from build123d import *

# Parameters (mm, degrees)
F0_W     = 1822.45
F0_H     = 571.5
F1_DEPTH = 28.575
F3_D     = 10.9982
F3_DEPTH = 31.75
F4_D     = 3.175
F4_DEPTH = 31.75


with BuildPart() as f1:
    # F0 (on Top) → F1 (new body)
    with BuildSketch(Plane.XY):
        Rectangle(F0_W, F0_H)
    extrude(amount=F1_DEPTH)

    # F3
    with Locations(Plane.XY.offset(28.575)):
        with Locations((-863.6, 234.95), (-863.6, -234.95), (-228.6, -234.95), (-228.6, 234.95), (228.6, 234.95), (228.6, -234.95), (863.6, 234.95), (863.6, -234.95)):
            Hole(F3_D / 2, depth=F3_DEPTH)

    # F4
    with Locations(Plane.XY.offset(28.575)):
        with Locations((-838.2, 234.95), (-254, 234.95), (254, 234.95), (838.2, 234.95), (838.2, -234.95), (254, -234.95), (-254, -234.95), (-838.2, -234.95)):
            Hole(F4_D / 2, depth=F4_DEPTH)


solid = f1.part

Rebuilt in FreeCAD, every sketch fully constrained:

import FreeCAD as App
import Part
import Sketcher
Q = App.Units.Quantity


def add_polygon(sketch, points):
    """Adds a closed chain of lines whose ends are joined by coincident constraints."""
    first, n = sketch.GeometryCount, len(points)
    for a, b in zip(points, points[1:] + points[:1]):
        sketch.addGeometry(Part.LineSegment(App.Vector(*a, 0), App.Vector(*b, 0)), False)
    for i in range(n):
        sketch.addConstraint(Sketcher.Constraint("Coincident", first + i, 2, first + (i + 1) % n, 1))

doc = App.newDocument("Part")
body = doc.addObject("PartDesign::Body", "Body")

# Sketch on XY plane
sketch1 = body.newObject("Sketcher::SketchObject", "Sketch")
sketch1.AttachmentSupport = (doc.getObject("XY_Plane"), [""])
sketch1.MapMode = "FlatFace"
add_polygon(sketch1, [(-911, 286), (-911, -286), (911, -286), (911, 286)])  # lines 0-3
sketch1.addConstraint([
    Sketcher.Constraint("Vertical", 0),
    Sketcher.Constraint("Horizontal", 1),
    Sketcher.Constraint("Vertical", 2),
    Sketcher.Constraint("Horizontal", 3),
    Sketcher.Constraint("Symmetric", 0, 2, 2, 2, -1, 1),
    Sketcher.Constraint("DistanceY", 0, 2, 0, 1, Q("22.5 in")),
    Sketcher.Constraint("DistanceX", 1, 1, 1, 2, Q("71.75 in")),
])
pad1 = body.newObject("PartDesign::Pad", "Pad")
pad1.Profile = sketch1
pad1.Length = Q("1.125 in")

# Sketch on XY plane
sketch2 = body.newObject("Sketcher::SketchObject", "Sketch001")
sketch2.AttachmentSupport = (doc.getObject("XY_Plane"), [""])
sketch2.MapMode = "FlatFace"
sketch2.AttachmentOffset = App.Placement(App.Vector(0, 0, 1.125 * 25.4), App.Rotation())
sketch2.addGeometry([
    Part.Circle(App.Vector(-864, 235, 0), App.Vector(0, 0, 1), 5),  # 0
    Part.Circle(App.Vector(-864, -235, 0), App.Vector(0, 0, 1), 5),  # 1
    Part.Circle(App.Vector(-229, -235, 0), App.Vector(0, 0, 1), 5),  # 2
    Part.Circle(App.Vector(-229, 235, 0), App.Vector(0, 0, 1), 5),  # 3
    Part.Circle(App.Vector(229, 235, 0), App.Vector(0, 0, 1), 5),  # 4
    Part.Circle(App.Vector(229, -235, 0), App.Vector(0, 0, 1), 5),  # 5
    Part.Circle(App.Vector(864, 235, 0), App.Vector(0, 0, 1), 5),  # 6
    Part.Circle(App.Vector(864, -235, 0), App.Vector(0, 0, 1), 5),  # 7
], False)
sketch2.addConstraint([
    Sketcher.Constraint("Equal", 0, 1),
    Sketcher.Constraint("Equal", 1, 2),
    Sketcher.Constraint("Equal", 2, 3),
    Sketcher.Constraint("Equal", 3, 4),
    Sketcher.Constraint("Equal", 4, 5),
    Sketcher.Constraint("Equal", 5, 6),
    Sketcher.Constraint("Equal", 6, 7),
    Sketcher.Constraint("Symmetric", 2, 3, 4, 3, -1, 1),
    Sketcher.Constraint("Symmetric", 3, 3, 5, 3, -1, 1),
    Sketcher.Constraint("Symmetric", 1, 3, 6, 3, -1, 1),
    Sketcher.Constraint("Symmetric", 0, 3, 7, 3, -1, 1),
    Sketcher.Constraint("Symmetric", 3, 3, 4, 3, -2),
    Sketcher.Constraint("Symmetric", 0, 3, 6, 3, -2),
    Sketcher.Constraint("Horizontal", 1, 3, 2, 3),
    Sketcher.Constraint("Diameter", 0, Q("0.433 in")),
    Sketcher.Constraint("DistanceX", 0, 3, -1, 1, Q("34 in")),
    Sketcher.Constraint("DistanceX", 2, 3, -1, 1, Q("9 in")),
    Sketcher.Constraint("DistanceY", 1, 3, 0, 3, Q("18.5 in")),
])
doc.recompute()
hole = body.newObject("PartDesign::Hole", "Hole")
hole.Profile = sketch2
hole.ThreadType = "None"
hole.Diameter = Q("0.433 in")
hole.DepthType = "Dimension"
hole.Depth = Q("1.25 in")
hole.DrillPoint = "Flat"

# Sketch on XY plane
sketch3 = body.newObject("Sketcher::SketchObject", "Sketch002")
sketch3.AttachmentSupport = (doc.getObject("XY_Plane"), [""])
sketch3.MapMode = "FlatFace"
sketch3.AttachmentOffset = App.Placement(App.Vector(0, 0, 1.125 * 25.4), App.Rotation())
sketch3.addGeometry([
    Part.Circle(App.Vector(-838.2, 234.9, 0), App.Vector(0, 0, 1), 1.6),  # 0
    Part.Circle(App.Vector(-254, 234.9, 0), App.Vector(0, 0, 1), 1.6),  # 1
    Part.Circle(App.Vector(254, 234.9, 0), App.Vector(0, 0, 1), 1.6),  # 2
    Part.Circle(App.Vector(838.2, 234.9, 0), App.Vector(0, 0, 1), 1.6),  # 3
    Part.Circle(App.Vector(838.2, -234.9, 0), App.Vector(0, 0, 1), 1.6),  # 4
    Part.Circle(App.Vector(254, -234.9, 0), App.Vector(0, 0, 1), 1.6),  # 5
    Part.Circle(App.Vector(-254, -234.9, 0), App.Vector(0, 0, 1), 1.6),  # 6
    Part.Circle(App.Vector(-838.2, -234.9, 0), App.Vector(0, 0, 1), 1.6),  # 7
], False)
sketch3.addConstraint([
    Sketcher.Constraint("Equal", 0, 1),
    Sketcher.Constraint("Equal", 1, 2),
    Sketcher.Constraint("Equal", 2, 3),
    Sketcher.Constraint("Equal", 3, 4),
    Sketcher.Constraint("Equal", 4, 5),
    Sketcher.Constraint("Equal", 5, 6),
    Sketcher.Constraint("Equal", 6, 7),
    Sketcher.Constraint("Symmetric", 0, 3, 4, 3, -1, 1),
    Sketcher.Constraint("Symmetric", 1, 3, 5, 3, -1, 1),
    Sketcher.Constraint("Symmetric", 2, 3, 6, 3, -1, 1),
    Sketcher.Constraint("Symmetric", 3, 3, 7, 3, -1, 1),
    Sketcher.Constraint("Symmetric", 1, 3, 2, 3, -2),
    Sketcher.Constraint("Symmetric", 0, 3, 3, 3, -2),
    Sketcher.Constraint("Horizontal", 0, 3, 1, 3),
    Sketcher.Constraint("Diameter", 0, Q("0.125 in")),
    Sketcher.Constraint("DistanceX", 0, 3, -1, 1, Q("33 in")),
    Sketcher.Constraint("DistanceX", 1, 3, -1, 1, Q("10 in")),
    Sketcher.Constraint("DistanceY", 4, 3, 3, 3, Q("18.5 in")),
])
doc.recompute()
hole2 = body.newObject("PartDesign::Hole", "Hole001")
hole2.Profile = sketch3
hole2.ThreadType = "None"
hole2.Diameter = Q("0.125 in")
hole2.DepthType = "Dimension"
hole2.Depth = Q("1.25 in")
hole2.DrillPoint = "Flat"

doc.recompute()
